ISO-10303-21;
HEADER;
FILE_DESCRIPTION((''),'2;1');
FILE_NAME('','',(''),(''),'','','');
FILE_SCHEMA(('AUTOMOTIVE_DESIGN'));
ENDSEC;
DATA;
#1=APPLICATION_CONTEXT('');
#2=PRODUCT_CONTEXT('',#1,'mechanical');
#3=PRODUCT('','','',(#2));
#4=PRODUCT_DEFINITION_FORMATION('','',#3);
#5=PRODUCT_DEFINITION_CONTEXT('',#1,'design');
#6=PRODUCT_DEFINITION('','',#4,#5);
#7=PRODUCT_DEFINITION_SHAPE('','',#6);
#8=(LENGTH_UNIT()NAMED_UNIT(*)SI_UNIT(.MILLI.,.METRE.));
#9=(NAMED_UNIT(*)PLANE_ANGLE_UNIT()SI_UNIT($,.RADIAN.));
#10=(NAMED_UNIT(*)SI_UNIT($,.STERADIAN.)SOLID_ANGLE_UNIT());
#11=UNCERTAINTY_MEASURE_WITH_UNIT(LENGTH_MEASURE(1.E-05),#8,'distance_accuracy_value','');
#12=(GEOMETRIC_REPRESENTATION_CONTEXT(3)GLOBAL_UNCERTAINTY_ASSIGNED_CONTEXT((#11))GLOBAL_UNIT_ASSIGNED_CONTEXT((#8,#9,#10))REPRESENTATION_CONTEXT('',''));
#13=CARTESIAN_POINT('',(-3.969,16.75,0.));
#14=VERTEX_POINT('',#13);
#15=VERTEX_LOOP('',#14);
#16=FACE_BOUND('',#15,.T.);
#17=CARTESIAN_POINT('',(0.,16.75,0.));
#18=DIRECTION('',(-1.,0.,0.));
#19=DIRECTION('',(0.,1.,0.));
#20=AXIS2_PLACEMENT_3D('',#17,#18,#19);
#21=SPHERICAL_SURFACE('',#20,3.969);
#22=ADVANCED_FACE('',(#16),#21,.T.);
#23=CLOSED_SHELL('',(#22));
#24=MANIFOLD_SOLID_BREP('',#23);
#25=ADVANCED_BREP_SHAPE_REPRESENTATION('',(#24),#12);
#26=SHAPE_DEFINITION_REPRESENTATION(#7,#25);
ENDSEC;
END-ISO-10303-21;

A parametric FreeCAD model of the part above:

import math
import FreeCAD as App
import Part
import Sketcher

V = App.Vector

doc = App.newDocument("Part")
params = doc.addObject("Spreadsheet::Sheet", "Params")
for row, (alias, value) in enumerate([
    ("revolution_angle", "360 deg"),
], start=1):
    params.set(f"A{row}", alias)
    params.set(f"B{row}", "=" + value)
    params.setAlias(f"B{row}", alias)

body = doc.addObject("PartDesign::Body", "Body")

# Sketch on XY plane
sketch1 = body.newObject("Sketcher::SketchObject", "Sketch")
sketch1.AttachmentSupport = (doc.getObject("XY_Plane"), [""])
sketch1.MapMode = "FlatFace"
sketch1.addGeometry([
    Part.LineSegment(V(-3.969, 16.75, 0), V(3.969, 16.75, 0)),
    Part.ArcOfCircle(Part.Circle(V(0, 16.75, 0), V(0, 0, 1), 3.969), math.radians(0), math.radians(180)),
], False)
sketch1.addGeometry(Part.LineSegment(V(3.969, 16.75, 0), V(-3.969, 16.75, 0)), True)  # axis
sketch1.addConstraint([
    Sketcher.Constraint("Coincident", 0, 1, 1, 2),
    Sketcher.Constraint("Coincident", 1, 1, 0, 2),
    Sketcher.Constraint("Horizontal", 0),
    Sketcher.Constraint("Horizontal", 2),
    Sketcher.Constraint("Coincident", 2, 1, 1, 1),
    Sketcher.Constraint("PointOnObject", 1, 3, -2),
    Sketcher.Constraint("Horizontal", 1, 3, 0, 1),
    Sketcher.Constraint("Equal", 0, 2),
    Sketcher.Constraint("Radius", 1, 3.969),
    Sketcher.Constraint("DistanceY", -1, 1, 1, 3, 16.75),
])
revolution = body.newObject("PartDesign::Revolution", "Revolution")
revolution.Profile = sketch1
revolution.ReferenceAxis = (sketch1, ["Axis0"])
revolution.setExpression("Angle", "Params.revolution_angle")

doc.recompute()
